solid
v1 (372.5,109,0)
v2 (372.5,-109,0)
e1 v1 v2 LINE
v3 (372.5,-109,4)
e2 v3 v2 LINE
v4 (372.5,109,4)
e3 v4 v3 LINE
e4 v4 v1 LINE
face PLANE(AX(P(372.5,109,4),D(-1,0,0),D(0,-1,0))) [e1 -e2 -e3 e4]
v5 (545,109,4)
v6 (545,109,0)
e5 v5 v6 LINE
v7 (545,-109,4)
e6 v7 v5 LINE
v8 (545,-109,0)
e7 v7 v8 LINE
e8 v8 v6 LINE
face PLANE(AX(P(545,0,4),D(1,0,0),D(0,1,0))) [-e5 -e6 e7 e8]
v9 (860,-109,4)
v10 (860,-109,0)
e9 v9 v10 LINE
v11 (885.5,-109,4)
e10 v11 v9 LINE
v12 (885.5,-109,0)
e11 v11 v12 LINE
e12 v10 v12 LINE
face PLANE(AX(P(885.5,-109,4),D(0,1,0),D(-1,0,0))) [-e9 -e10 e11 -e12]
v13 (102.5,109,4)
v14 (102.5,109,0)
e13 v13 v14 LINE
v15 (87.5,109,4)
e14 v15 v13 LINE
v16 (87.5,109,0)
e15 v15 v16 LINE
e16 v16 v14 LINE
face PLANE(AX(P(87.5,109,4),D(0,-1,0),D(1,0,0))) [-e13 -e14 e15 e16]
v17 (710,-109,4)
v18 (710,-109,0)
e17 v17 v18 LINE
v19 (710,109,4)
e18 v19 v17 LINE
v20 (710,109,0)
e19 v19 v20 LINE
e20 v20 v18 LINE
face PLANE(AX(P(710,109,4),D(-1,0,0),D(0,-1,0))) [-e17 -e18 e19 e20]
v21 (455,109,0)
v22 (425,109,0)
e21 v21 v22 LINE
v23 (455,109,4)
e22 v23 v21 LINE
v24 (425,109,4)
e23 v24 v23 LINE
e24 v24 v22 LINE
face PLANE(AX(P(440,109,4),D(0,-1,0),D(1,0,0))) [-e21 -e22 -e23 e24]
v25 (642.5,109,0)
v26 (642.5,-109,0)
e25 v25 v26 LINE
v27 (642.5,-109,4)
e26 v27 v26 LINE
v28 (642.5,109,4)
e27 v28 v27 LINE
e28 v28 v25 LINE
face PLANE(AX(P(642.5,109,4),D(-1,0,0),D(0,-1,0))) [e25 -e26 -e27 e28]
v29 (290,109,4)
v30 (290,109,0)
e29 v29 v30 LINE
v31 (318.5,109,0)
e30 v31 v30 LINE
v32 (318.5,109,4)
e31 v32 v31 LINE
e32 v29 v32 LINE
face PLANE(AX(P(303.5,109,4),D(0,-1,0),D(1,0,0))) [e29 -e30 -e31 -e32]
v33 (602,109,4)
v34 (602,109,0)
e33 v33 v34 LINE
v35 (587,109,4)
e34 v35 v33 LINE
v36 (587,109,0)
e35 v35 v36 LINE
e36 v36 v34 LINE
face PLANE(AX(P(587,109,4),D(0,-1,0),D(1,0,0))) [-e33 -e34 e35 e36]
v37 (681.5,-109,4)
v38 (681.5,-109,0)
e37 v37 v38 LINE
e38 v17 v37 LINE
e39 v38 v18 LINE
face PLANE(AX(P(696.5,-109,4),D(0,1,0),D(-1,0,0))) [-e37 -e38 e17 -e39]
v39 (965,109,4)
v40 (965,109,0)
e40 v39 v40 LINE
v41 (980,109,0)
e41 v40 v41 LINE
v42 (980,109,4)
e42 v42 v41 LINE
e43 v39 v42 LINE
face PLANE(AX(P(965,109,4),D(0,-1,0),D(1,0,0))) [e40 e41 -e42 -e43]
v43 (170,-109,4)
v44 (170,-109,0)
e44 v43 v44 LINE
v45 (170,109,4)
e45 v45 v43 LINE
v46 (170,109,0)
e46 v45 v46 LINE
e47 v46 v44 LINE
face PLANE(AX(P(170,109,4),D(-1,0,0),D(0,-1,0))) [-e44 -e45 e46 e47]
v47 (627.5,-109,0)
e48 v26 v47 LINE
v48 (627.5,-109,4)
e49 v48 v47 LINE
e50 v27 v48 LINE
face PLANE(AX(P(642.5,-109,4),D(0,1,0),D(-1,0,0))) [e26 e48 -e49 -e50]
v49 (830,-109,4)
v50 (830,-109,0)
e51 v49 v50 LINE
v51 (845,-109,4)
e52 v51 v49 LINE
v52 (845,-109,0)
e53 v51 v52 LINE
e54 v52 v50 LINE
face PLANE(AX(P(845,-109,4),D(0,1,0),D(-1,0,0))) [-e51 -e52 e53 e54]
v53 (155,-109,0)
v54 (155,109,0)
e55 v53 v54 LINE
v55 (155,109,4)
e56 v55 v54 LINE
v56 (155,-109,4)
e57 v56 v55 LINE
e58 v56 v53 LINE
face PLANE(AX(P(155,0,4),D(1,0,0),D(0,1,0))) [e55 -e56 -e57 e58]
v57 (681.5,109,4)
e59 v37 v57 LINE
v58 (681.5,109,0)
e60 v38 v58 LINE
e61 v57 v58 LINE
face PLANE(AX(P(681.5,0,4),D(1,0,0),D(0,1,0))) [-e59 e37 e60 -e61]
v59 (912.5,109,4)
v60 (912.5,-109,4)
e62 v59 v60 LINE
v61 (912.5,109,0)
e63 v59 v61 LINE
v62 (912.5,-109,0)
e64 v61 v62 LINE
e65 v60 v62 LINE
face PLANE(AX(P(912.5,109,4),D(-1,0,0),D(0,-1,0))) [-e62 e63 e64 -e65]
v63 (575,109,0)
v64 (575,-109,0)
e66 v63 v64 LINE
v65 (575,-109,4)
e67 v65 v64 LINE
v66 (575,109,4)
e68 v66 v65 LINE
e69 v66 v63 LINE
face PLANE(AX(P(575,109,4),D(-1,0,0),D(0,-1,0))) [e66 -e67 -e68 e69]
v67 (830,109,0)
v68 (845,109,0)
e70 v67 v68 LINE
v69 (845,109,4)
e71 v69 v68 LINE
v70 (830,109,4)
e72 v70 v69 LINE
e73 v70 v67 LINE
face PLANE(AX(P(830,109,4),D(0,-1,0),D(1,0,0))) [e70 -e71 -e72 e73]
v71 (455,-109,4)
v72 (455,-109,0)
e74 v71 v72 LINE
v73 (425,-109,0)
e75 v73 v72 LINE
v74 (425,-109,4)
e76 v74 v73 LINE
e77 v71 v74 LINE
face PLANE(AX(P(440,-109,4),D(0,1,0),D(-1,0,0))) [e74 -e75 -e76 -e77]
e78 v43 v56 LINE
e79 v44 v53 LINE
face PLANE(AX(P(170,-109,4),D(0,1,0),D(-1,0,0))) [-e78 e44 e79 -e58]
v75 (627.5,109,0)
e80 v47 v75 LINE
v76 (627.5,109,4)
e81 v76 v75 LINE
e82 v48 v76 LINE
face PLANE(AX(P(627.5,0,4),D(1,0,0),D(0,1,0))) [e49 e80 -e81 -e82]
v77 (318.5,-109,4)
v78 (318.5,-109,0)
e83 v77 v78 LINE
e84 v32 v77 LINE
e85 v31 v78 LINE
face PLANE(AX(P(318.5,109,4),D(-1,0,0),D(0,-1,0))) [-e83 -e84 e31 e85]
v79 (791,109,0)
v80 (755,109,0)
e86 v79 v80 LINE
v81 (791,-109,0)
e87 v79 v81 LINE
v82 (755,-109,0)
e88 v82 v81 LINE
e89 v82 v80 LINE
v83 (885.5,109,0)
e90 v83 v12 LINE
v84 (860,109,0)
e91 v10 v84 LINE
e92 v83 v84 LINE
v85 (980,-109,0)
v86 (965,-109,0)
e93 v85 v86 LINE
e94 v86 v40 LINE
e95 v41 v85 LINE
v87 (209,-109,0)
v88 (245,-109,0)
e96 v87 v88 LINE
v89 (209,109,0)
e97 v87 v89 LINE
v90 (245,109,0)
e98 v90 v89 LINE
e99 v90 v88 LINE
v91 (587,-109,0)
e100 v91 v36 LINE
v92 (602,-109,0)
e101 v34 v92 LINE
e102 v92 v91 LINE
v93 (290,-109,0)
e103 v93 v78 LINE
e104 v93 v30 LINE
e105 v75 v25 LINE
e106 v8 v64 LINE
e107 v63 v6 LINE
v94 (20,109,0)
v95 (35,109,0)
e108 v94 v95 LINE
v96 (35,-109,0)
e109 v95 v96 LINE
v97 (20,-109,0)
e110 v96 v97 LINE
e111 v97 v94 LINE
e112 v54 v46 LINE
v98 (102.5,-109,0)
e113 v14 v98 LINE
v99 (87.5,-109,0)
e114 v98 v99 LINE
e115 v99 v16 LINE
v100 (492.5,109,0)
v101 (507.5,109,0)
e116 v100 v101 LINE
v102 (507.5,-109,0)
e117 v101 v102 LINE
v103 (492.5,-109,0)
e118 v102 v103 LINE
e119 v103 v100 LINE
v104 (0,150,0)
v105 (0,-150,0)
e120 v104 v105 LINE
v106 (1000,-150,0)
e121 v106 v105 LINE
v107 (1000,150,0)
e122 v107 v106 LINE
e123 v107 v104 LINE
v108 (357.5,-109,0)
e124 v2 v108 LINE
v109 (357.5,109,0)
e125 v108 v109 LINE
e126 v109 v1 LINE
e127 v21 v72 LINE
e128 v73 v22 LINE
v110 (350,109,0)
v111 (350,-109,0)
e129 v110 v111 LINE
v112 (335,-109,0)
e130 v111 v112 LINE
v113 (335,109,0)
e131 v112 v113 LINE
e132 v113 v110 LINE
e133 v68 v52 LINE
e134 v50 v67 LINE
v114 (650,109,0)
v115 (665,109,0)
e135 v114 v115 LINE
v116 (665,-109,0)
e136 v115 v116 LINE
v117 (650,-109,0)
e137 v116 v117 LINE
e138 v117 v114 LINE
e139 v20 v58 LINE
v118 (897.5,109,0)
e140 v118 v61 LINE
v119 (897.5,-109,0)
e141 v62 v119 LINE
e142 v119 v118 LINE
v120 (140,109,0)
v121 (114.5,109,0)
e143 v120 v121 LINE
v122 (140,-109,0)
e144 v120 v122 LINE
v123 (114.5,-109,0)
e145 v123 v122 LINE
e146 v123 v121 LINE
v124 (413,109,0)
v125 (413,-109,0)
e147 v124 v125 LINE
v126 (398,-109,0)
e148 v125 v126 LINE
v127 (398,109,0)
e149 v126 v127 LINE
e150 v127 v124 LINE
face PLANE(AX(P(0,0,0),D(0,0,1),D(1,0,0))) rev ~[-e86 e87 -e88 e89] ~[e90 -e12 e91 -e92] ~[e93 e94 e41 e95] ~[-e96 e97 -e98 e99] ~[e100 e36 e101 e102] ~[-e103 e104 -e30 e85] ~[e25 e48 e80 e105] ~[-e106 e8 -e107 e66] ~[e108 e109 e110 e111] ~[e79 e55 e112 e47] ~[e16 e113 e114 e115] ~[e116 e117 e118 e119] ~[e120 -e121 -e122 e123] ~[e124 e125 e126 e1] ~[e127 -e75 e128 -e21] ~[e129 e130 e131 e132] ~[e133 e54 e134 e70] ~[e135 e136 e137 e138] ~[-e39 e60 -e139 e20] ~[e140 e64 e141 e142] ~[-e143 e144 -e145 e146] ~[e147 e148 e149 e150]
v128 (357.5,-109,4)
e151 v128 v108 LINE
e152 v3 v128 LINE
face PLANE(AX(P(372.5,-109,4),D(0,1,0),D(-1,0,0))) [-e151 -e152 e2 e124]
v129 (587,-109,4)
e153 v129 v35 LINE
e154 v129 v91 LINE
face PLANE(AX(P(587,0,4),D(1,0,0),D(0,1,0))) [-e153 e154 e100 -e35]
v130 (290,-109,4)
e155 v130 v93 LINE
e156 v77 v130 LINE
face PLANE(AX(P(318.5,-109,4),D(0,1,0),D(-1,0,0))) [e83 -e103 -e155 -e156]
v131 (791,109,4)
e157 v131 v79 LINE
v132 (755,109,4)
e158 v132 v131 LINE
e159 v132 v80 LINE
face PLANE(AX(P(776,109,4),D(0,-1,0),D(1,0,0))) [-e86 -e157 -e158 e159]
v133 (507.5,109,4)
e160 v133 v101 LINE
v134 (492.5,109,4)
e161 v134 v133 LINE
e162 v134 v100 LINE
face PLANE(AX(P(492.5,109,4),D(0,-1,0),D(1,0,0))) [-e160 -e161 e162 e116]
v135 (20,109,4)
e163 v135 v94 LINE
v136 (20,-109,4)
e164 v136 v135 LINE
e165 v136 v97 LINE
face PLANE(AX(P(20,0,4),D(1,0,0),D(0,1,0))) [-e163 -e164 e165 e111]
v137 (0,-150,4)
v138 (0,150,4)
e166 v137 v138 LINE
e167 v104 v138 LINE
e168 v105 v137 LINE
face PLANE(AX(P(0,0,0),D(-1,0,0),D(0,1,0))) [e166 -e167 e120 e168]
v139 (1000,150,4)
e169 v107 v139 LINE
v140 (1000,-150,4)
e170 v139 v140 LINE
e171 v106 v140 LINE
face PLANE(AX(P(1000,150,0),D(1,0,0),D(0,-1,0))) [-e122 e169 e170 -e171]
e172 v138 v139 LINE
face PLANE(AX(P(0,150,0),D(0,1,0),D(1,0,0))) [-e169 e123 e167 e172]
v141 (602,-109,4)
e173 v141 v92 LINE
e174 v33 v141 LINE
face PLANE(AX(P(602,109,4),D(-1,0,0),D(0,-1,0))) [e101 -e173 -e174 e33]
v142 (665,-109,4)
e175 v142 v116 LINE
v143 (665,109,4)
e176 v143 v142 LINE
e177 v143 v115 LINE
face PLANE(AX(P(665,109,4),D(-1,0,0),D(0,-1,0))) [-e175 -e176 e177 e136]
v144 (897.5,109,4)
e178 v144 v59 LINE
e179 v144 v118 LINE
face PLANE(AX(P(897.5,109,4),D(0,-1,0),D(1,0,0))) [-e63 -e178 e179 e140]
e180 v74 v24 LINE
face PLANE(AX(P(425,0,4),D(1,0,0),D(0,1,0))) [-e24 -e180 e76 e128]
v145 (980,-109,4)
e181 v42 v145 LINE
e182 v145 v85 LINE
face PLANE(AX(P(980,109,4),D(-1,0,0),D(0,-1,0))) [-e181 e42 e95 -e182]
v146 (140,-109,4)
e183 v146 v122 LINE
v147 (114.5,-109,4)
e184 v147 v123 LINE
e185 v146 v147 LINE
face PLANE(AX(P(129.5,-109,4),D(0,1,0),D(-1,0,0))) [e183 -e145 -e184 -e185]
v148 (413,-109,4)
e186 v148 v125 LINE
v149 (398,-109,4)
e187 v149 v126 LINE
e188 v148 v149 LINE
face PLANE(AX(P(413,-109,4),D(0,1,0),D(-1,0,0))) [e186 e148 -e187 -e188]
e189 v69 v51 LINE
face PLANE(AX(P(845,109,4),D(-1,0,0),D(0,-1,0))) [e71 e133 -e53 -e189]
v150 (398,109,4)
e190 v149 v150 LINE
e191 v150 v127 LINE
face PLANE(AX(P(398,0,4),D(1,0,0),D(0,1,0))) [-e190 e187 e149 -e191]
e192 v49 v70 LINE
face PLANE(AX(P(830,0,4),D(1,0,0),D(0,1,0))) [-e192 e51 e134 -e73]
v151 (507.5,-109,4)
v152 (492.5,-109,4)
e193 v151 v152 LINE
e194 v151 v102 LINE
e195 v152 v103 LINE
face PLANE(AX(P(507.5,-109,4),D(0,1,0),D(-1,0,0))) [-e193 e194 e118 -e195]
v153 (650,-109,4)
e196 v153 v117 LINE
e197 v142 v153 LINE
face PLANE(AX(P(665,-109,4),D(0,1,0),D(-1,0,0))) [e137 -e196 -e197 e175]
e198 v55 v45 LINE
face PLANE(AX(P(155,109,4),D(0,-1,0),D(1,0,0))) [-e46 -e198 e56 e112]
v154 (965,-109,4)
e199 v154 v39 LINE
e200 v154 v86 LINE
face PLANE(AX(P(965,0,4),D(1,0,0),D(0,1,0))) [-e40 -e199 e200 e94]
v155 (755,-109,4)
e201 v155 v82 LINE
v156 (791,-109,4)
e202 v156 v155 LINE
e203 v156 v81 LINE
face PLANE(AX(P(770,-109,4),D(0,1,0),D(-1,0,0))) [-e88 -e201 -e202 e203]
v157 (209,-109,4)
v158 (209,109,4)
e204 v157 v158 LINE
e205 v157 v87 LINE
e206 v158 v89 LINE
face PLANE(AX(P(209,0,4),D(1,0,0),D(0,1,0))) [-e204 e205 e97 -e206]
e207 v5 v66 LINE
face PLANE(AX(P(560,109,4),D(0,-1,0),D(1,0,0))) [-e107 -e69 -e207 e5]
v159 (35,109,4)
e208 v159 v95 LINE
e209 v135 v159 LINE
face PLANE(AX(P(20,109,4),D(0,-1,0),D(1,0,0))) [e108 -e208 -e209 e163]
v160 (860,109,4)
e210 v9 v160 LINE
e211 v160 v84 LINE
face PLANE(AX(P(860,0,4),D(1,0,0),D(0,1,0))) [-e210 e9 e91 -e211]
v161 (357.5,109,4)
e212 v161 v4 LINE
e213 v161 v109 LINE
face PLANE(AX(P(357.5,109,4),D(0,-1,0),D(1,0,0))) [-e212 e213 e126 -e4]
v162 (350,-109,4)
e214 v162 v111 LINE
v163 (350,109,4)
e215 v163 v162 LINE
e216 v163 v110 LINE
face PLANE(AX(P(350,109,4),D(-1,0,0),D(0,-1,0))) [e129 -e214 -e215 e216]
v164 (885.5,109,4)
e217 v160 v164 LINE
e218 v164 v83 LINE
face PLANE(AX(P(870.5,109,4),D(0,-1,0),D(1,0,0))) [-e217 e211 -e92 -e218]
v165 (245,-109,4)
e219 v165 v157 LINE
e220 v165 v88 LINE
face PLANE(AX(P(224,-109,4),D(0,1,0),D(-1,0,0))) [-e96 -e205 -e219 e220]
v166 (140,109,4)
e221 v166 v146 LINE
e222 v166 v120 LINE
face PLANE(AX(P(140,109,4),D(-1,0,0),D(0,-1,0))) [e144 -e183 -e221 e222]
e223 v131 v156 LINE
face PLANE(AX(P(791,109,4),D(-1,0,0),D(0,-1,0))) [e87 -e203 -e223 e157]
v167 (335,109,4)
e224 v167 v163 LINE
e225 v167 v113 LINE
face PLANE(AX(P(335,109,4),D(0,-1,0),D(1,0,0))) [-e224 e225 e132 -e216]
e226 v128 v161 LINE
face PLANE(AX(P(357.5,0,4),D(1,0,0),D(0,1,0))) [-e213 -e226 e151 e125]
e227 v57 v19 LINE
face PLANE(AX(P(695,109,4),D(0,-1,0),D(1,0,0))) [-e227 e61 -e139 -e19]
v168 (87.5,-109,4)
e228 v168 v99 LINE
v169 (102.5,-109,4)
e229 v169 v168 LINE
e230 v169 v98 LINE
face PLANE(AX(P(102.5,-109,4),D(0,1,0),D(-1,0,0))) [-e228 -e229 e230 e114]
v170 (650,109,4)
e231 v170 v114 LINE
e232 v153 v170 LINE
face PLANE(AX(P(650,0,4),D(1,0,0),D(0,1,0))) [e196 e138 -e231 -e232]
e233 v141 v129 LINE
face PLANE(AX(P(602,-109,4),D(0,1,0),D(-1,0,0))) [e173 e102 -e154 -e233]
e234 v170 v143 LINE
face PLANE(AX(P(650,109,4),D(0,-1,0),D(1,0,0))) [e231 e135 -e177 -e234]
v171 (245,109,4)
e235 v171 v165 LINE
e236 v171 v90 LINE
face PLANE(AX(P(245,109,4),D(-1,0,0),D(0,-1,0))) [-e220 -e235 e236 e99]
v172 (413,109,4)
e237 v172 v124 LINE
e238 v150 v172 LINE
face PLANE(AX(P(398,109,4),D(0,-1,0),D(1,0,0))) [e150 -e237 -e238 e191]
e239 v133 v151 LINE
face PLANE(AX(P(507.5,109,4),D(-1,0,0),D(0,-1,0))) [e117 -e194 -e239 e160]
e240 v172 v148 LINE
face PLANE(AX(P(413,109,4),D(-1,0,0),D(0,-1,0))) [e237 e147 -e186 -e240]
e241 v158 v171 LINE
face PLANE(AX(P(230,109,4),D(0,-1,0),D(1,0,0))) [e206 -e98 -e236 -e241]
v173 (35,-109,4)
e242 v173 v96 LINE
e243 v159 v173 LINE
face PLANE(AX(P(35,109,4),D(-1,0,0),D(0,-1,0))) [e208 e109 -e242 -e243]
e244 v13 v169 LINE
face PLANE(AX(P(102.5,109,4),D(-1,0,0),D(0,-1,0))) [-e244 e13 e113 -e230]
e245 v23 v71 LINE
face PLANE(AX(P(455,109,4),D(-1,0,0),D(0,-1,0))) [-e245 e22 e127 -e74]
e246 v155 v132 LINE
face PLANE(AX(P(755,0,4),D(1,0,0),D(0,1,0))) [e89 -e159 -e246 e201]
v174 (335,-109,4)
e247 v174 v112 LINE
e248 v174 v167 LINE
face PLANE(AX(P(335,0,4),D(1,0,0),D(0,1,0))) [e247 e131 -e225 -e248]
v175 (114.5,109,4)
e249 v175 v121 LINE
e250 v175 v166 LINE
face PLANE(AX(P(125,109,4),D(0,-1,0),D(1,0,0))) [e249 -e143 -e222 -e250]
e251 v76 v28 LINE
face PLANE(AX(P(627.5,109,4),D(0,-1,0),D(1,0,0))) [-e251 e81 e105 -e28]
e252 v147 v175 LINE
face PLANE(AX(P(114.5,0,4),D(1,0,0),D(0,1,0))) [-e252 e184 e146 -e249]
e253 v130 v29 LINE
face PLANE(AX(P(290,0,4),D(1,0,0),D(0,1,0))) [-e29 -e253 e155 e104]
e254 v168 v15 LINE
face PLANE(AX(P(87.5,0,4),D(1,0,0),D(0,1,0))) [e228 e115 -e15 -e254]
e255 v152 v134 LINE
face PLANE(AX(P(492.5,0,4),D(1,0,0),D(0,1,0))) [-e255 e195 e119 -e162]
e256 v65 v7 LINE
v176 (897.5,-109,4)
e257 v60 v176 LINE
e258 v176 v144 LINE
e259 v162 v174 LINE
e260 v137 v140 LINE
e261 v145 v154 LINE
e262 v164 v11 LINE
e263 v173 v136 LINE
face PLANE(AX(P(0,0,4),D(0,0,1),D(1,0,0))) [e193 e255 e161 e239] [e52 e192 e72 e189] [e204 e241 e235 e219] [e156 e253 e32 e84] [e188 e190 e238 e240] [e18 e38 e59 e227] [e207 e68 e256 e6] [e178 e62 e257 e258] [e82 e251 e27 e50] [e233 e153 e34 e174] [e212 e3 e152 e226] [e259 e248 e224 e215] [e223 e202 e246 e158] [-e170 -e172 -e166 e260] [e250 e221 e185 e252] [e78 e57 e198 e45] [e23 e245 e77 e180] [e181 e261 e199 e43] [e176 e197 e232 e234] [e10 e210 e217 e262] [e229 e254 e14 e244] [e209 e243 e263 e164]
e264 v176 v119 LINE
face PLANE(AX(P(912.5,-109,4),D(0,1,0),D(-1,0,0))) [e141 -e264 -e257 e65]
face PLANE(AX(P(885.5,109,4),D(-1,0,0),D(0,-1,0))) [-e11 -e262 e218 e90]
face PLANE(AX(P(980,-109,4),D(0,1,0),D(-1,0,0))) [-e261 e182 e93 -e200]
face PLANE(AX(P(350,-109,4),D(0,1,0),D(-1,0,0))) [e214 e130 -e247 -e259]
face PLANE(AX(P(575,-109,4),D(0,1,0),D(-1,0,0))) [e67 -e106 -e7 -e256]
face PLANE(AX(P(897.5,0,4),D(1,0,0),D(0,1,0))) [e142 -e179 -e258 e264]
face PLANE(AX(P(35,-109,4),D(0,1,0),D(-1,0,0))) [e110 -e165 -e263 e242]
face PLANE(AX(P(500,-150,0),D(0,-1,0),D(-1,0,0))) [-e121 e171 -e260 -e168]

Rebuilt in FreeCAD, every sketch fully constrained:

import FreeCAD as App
import Part
import Sketcher
from FreeCAD import Vector
Q = App.Units.Quantity

doc = App.newDocument("Part")
params = doc.addObject("Spreadsheet::Sheet", "Params")
for row, (alias, value) in enumerate([
    ("sketch1_width", "1000 mm"),
    ("sketch1_height", "300 mm"),
    ("pad1_length", "4 mm"),
    ("sketch2_width", "15 mm"),
    ("sketch2_height", "218 mm"),
    ("linearpattern_pitch", "94.5 mm"),
    ("linearpattern2_pitch", "135 mm"),
    ("linearpattern3_pitch", "105 mm"),
    ("linearpattern4_pitch", "67.5 mm"),
], start=1):
    params.set(f"A{row}", alias)
    params.set(f"B{row}", "=" + value)
    params.setAlias(f"B{row}", alias)

body = doc.addObject("PartDesign::Body", "Body")

# Sketch on XY plane
sketch1 = body.newObject("Sketcher::SketchObject", "Sketch")
sketch1.AttachmentSupport = (doc.getObject("XY_Plane"), [""])
sketch1.MapMode = "FlatFace"
sketch1.addGeometry(Part.LineSegment(Vector(0, 150, 0), Vector(0, -150, 0)), False)
sketch1.addGeometry(Part.LineSegment(Vector(0, -150, 0), Vector(1000, -150, 0)), False)
sketch1.addGeometry(Part.LineSegment(Vector(1000, -150, 0), Vector(1000, 150, 0)), False)
sketch1.addGeometry(Part.LineSegment(Vector(1000, 150, 0), Vector(0, 150, 0)), False)
sketch1.addConstraint(Sketcher.Constraint("Coincident", 0, 2, 1, 1))
sketch1.addConstraint(Sketcher.Constraint("Coincident", 1, 2, 2, 1))
sketch1.addConstraint(Sketcher.Constraint("Coincident", 2, 2, 3, 1))
sketch1.addConstraint(Sketcher.Constraint("Coincident", 3, 2, 0, 1))
sketch1.addConstraint(Sketcher.Constraint("Vertical", 0))
sketch1.addConstraint(Sketcher.Constraint("Horizontal", 1))
sketch1.addConstraint(Sketcher.Constraint("Vertical", 2))
sketch1.addConstraint(Sketcher.Constraint("Horizontal", 3))
sketch1.addConstraint(Sketcher.Constraint("Symmetric", 0, 2, 3, 2, -1, 1))
sketch1.addConstraint(Sketcher.Constraint("DistanceX", 1, 1, 1, 2, Q("1000 mm")))
sketch1.addConstraint(Sketcher.Constraint("DistanceY", 0, 2, 0, 1, Q("300 mm")))
sketch1.setExpression("Constraints[9]", "Params.sketch1_width")
sketch1.setExpression("Constraints[10]", "Params.sketch1_height")
pad1 = body.newObject("PartDesign::Pad", "Pad")
pad1.Profile = sketch1
pad1.setExpression("Length", "Params.pad1_length")

# Sketch on XY plane
sketch2 = body.newObject("Sketcher::SketchObject", "Sketch001")
sketch2.AttachmentSupport = (doc.getObject("XY_Plane"), [""])
sketch2.MapMode = "FlatFace"
sketch2.AttachmentOffset = App.Placement(Vector(0, 0, 4), App.Rotation())
sketch2.addGeometry(Part.LineSegment(Vector(35, 109, 0), Vector(20, 109, 0)), False)
sketch2.addGeometry(Part.LineSegment(Vector(20, 109, 0), Vector(20, -109, 0)), False)
sketch2.addGeometry(Part.LineSegment(Vector(20, -109, 0), Vector(35, -109, 0)), False)
sketch2.addGeometry(Part.LineSegment(Vector(35, -109, 0), Vector(35, 109, 0)), False)
sketch2.addConstraint(Sketcher.Constraint("Coincident", 0, 2, 1, 1))
sketch2.addConstraint(Sketcher.Constraint("Coincident", 1, 2, 2, 1))
sketch2.addConstraint(Sketcher.Constraint("Coincident", 2, 2, 3, 1))
sketch2.addConstraint(Sketcher.Constraint("Coincident", 3, 2, 0, 1))
sketch2.addConstraint(Sketcher.Constraint("Horizontal", 0))
sketch2.addConstraint(Sketcher.Constraint("Vertical", 1))
sketch2.addConstraint(Sketcher.Constraint("Horizontal", 2))
sketch2.addConstraint(Sketcher.Constraint("Vertical", 3))
sketch2.addConstraint(Sketcher.Constraint("DistanceX", 0, 2, 0, 1, Q("15 mm")))
sketch2.addConstraint(Sketcher.Constraint("DistanceY", 1, 2, 1, 1, Q("218 mm")))
sketch2.addConstraint(Sketcher.Constraint("DistanceX", -1, 1, 0, 2, Q("20 mm")))
sketch2.addConstraint(Sketcher.Constraint("DistanceY", -1, 1, 0, 2, Q("109 mm")))
sketch2.setExpression("Constraints[8]", "Params.sketch2_width")
sketch2.setExpression("Constraints[9]", "Params.sketch2_height")
pocket1 = body.newObject("PartDesign::Pocket", "Pocket")
pocket1.Profile = sketch2
pocket1.Type = "ThroughAll"
doc.recompute()

linearpattern = body.newObject("PartDesign::LinearPattern", "LinearPattern")
linearpattern.Originals = [pocket1]
linearpattern.Direction = (doc.getObject("X_Axis"), [""])
linearpattern.Mode = "offset"
linearpattern.setExpression("Offset", "Params.linearpattern_pitch")
linearpattern.Occurrences = 11
body.Tip = linearpattern
doc.recompute()

linearpattern2 = body.newObject("PartDesign::LinearPattern", "LinearPattern001")
linearpattern2.Originals = [pocket1]
linearpattern2.Direction = (doc.getObject("X_Axis"), [""])
linearpattern2.Mode = "offset"
linearpattern2.setExpression("Offset", "Params.linearpattern2_pitch")
linearpattern2.Occurrences = 8
body.Tip = linearpattern2
doc.recompute()

linearpattern3 = body.newObject("PartDesign::LinearPattern", "LinearPattern002")
linearpattern3.Originals = [pocket1]
linearpattern3.Direction = (doc.getObject("X_Axis"), [""])
linearpattern3.Mode = "offset"
linearpattern3.setExpression("Offset", "Params.linearpattern3_pitch")
linearpattern3.Occurrences = 10
body.Tip = linearpattern3
doc.recompute()

linearpattern4 = body.newObject("PartDesign::LinearPattern", "LinearPattern003")
linearpattern4.Originals = [pocket1]
linearpattern4.Direction = (doc.getObject("X_Axis"), [""])
linearpattern4.Mode = "offset"
linearpattern4.setExpression("Offset", "Params.linearpattern4_pitch")
linearpattern4.Occurrences = 15
body.Tip = linearpattern4

doc.recompute()
